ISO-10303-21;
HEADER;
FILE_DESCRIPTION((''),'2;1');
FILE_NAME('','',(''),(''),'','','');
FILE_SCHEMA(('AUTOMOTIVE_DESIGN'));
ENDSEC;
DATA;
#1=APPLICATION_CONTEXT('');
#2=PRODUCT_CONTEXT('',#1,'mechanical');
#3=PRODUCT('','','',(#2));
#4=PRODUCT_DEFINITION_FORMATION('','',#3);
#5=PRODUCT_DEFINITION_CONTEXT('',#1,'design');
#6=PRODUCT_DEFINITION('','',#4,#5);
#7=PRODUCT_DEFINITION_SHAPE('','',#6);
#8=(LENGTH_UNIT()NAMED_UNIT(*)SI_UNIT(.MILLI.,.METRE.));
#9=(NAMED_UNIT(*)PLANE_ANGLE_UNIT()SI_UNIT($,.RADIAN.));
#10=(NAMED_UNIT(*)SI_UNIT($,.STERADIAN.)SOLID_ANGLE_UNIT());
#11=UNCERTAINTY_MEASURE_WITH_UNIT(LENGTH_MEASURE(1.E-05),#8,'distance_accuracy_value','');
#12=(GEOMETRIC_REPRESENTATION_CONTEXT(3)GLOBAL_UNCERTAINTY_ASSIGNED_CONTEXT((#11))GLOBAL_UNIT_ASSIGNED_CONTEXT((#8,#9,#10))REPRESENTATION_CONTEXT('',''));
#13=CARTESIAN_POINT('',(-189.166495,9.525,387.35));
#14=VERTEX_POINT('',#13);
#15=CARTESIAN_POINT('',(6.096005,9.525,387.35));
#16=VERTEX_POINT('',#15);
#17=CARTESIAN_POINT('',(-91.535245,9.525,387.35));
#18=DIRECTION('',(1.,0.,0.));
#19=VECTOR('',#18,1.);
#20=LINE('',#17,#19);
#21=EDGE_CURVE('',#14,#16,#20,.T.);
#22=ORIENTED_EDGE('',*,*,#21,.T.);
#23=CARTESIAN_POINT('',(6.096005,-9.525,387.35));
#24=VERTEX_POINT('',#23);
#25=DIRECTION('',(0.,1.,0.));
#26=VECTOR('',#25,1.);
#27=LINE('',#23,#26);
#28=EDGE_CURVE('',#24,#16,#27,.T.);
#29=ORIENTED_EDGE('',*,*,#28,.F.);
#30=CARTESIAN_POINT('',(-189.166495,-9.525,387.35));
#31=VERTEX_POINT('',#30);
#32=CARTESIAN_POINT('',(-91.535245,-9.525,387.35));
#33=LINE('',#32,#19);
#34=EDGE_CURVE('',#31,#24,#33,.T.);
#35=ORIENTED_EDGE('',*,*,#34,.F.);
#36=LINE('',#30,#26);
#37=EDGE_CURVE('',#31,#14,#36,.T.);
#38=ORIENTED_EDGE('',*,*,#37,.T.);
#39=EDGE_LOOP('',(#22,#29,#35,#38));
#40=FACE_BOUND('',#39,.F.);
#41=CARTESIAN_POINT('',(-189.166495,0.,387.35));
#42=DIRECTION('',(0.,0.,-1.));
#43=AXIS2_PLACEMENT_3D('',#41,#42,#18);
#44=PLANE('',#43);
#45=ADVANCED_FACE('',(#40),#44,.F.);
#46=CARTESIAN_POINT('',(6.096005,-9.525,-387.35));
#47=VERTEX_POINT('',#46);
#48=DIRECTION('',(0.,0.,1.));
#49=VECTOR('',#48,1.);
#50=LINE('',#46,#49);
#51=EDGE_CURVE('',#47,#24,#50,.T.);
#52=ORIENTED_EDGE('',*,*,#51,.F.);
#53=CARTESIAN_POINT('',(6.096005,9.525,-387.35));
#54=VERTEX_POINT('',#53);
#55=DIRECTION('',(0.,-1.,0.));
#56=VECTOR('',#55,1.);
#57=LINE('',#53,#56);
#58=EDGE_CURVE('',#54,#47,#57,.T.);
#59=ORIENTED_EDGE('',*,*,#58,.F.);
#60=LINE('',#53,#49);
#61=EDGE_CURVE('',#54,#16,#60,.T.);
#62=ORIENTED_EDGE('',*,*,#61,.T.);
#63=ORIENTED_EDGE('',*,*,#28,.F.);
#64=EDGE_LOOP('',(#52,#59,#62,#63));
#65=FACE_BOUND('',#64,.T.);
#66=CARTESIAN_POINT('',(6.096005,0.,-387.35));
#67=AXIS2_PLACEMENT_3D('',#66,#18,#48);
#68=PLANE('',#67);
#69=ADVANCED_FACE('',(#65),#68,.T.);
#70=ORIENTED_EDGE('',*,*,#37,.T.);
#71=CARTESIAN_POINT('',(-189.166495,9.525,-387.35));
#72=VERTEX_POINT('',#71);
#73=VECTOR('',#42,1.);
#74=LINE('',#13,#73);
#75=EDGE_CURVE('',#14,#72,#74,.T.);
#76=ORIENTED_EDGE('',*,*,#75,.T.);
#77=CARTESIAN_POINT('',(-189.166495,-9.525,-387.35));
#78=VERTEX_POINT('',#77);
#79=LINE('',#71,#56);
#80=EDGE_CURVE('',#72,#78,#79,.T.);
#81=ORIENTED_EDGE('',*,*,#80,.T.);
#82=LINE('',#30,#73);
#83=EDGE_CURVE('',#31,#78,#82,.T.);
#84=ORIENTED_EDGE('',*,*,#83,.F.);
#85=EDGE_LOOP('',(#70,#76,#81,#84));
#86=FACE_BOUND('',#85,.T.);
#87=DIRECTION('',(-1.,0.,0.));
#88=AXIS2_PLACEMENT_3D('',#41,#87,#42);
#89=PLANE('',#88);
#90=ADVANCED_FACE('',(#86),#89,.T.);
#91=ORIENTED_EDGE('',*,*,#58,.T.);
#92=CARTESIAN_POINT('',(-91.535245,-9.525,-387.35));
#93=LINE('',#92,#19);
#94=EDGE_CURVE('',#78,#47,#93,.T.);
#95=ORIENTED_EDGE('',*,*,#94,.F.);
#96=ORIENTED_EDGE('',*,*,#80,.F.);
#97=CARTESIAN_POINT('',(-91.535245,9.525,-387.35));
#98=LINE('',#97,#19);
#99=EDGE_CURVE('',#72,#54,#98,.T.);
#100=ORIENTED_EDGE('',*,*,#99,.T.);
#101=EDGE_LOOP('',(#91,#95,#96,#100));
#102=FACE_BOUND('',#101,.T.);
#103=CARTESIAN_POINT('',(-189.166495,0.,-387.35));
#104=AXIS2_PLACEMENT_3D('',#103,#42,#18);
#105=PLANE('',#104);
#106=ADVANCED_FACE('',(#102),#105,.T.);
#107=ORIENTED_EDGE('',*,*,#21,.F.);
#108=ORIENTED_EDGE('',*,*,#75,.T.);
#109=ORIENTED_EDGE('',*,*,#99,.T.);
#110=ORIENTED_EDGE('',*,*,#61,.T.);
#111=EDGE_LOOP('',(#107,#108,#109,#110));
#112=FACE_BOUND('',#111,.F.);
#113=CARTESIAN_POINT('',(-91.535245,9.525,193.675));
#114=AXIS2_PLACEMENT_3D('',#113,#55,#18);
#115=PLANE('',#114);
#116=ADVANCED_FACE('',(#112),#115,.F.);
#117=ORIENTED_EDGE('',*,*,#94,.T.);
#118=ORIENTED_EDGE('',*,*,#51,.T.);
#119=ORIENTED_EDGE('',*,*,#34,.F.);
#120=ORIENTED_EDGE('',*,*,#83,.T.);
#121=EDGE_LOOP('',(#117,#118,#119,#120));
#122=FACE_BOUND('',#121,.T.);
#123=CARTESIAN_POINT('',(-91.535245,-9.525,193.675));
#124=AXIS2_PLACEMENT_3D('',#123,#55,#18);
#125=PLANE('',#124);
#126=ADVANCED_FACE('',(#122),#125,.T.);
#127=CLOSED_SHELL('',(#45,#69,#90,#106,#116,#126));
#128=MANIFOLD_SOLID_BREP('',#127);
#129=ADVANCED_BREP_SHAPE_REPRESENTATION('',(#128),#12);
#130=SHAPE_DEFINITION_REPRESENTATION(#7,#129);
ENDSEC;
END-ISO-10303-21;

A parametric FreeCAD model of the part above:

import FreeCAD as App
import Part
import Sketcher
from FreeCAD import Vector
Q = App.Units.Quantity


def add_polygon(sketch, points):
    """Adds a closed chain of lines whose ends are joined by coincident constraints."""
    first, n = sketch.GeometryCount, len(points)
    for a, b in zip(points, points[1:] + points[:1]):
        sketch.addGeometry(Part.LineSegment(App.Vector(*a, 0), App.Vector(*b, 0)), False)
    for i in range(n):
        sketch.addConstraint(Sketcher.Constraint("Coincident", first + i, 2, first + (i + 1) % n, 1))

doc = App.newDocument("Part")
params = doc.addObject("Spreadsheet::Sheet", "Params")
for row, (alias, value) in enumerate([
    ("sketch1_height", "30.5 in"),
    ("sketch1_width", "7.6875 in"),
    ("pad1_length", "0.75 in"),
], start=1):
    params.set(f"A{row}", alias)
    params.set(f"B{row}", "=" + value)
    params.setAlias(f"B{row}", alias)

body = doc.addObject("PartDesign::Body", "Body")

# Sketch on XZ plane
sketch1 = body.newObject("Sketcher::SketchObject", "Sketch")
sketch1.AttachmentSupport = (doc.getObject("XZ_Plane"), [""])
sketch1.MapMode = "FlatFace"
add_polygon(sketch1, [(-189, 387), (-189, -387), (6, -387), (6, 387)])  # lines 0-3
sketch1.addConstraint([
    Sketcher.Constraint("Vertical", 0),
    Sketcher.Constraint("Horizontal", 1),
    Sketcher.Constraint("Vertical", 2),
    Sketcher.Constraint("Horizontal", 3),
    Sketcher.Constraint("DistanceY", 0, 2, 0, 1, Q("30.5 in")),
    Sketcher.Constraint("DistanceX", 1, 1, 1, 2, Q("7.6875 in")),
    Sketcher.Constraint("DistanceY", 0, 2, -1, 1, Q("15.25 in")),
    Sketcher.Constraint("DistanceX", -1, 1, 1, 2, Q("0.2400002 in")),
])
sketch1.setExpression("Constraints[8]", "Params.sketch1_height")
sketch1.setExpression("Constraints[9]", "Params.sketch1_width")
pad1 = body.newObject("PartDesign::Pad", "Pad")
pad1.Profile = sketch1
pad1.setExpression("Length", "Params.pad1_length")
pad1.Midplane = True

doc.recompute()
